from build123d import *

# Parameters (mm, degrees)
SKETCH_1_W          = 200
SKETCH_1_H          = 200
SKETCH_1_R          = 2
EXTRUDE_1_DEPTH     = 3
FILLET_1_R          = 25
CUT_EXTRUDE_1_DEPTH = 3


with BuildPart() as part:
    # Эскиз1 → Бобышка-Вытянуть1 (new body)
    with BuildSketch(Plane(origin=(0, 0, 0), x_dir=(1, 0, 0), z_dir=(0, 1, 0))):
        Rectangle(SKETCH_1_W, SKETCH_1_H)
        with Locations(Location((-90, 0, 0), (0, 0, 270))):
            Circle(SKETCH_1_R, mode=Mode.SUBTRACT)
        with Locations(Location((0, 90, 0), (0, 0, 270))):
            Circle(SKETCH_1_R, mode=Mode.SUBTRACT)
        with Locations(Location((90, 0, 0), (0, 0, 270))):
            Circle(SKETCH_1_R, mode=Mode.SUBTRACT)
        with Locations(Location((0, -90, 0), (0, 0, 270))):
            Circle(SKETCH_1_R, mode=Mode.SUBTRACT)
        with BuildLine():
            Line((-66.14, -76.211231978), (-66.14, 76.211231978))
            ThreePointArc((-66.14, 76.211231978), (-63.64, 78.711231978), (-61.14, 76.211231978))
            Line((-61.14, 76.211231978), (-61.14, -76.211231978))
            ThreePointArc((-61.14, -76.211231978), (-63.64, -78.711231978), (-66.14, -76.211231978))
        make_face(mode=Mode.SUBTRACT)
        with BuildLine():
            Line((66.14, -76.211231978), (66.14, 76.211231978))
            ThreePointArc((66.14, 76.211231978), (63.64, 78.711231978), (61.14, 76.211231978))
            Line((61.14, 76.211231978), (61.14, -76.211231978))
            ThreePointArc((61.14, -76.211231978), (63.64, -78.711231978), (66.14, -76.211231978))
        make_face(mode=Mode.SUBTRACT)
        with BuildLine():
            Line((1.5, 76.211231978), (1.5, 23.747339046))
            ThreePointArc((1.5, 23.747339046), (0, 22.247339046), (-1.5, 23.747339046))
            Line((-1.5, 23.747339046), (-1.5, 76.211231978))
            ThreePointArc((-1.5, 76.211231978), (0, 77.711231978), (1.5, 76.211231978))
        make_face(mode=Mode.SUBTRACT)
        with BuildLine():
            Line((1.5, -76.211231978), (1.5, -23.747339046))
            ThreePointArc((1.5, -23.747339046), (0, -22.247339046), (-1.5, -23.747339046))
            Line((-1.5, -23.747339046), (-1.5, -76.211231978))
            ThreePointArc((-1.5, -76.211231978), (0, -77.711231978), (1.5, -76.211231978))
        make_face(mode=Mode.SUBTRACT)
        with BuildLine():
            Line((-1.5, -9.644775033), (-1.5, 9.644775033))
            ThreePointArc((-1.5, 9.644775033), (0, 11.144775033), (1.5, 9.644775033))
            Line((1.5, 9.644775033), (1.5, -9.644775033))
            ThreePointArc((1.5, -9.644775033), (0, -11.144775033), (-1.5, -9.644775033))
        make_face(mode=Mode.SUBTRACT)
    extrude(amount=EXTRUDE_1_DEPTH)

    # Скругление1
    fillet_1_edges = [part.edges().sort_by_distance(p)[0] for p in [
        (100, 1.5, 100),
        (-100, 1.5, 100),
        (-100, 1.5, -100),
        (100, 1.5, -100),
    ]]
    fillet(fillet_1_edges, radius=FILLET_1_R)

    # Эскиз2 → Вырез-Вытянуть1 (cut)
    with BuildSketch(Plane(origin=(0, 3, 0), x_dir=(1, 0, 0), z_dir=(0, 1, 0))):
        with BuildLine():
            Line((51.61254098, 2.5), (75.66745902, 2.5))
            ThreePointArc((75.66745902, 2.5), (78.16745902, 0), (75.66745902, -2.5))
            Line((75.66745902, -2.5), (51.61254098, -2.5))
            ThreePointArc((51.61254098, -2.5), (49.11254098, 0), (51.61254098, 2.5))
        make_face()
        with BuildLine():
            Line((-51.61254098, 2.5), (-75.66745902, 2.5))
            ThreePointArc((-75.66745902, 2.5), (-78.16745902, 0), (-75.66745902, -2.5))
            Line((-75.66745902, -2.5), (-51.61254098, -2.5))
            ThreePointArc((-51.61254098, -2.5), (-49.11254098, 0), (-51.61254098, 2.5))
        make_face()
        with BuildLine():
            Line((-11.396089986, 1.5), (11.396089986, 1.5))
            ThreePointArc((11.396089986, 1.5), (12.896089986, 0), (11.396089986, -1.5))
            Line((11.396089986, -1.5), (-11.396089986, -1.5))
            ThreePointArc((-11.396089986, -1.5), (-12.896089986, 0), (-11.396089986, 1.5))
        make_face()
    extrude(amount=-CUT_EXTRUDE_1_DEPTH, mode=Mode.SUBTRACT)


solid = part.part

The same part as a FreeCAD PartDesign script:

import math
import FreeCAD as App
import Part
import Sketcher
from FreeCAD import Vector
Q = App.Units.Quantity


def edges_at(feature, points):
    """Names of the edges that pass closest to the given points."""
    edges = feature.Shape.Edges
    near = lambda p: min(range(len(edges)), key=lambda i: edges[i].distToShape(Part.Vertex(*p))[0])
    return sorted({f"Edge{near(p) + 1}" for p in points})


def add_polygon(sketch, points):
    """Adds a closed chain of lines whose ends are joined by coincident constraints."""
    first, n = sketch.GeometryCount, len(points)
    for a, b in zip(points, points[1:] + points[:1]):
        sketch.addGeometry(Part.LineSegment(App.Vector(*a, 0), App.Vector(*b, 0)), False)
    for i in range(n):
        sketch.addConstraint(Sketcher.Constraint("Coincident", first + i, 2, first + (i + 1) % n, 1))

doc = App.newDocument("Part")
body = doc.addObject("PartDesign::Body", "Body")

sketch1 = doc.addObject("Sketcher::SketchObject", "Sketch")
body.addObject(sketch1)
sketch1.AttachmentSupport = (doc.XZ_Plane, [""])
sketch1.MapMode = "FlatFace"
add_polygon(sketch1, [(-100, -100), (-100, 100), (100, 100), (100, -100)])
sketch1.addGeometry(Part.Circle(Vector(0, 90, 0), Vector(0, 0, 1), 2), False)
sketch1.addGeometry(Part.LineSegment(Vector(1.5, 23.747339, 0), Vector(1.5, 76.211232, 0)), False)
sketch1.addGeometry(Part.ArcOfCircle(Part.Circle(Vector(0, 76.211232, 0), Vector(0, 0, 1), 1.5), math.radians(0), math.radians(180)), False)
sketch1.addGeometry(Part.LineSegment(Vector(-1.5, 76.211232, 0), Vector(-1.5, 23.747339, 0)), False)
sketch1.addGeometry(Part.ArcOfCircle(Part.Circle(Vector(0, 23.747339, 0), Vector(0, 0, 1), 1.5), math.radians(180), math.radians(360)), False)
sketch1.addGeometry(Part.Circle(Vector(-90, 0, 0), Vector(0, 0, 1), 2), False)
sketch1.addGeometry(Part.ArcOfCircle(Part.Circle(Vector(-63.64, 76.211232, 0), Vector(0, 0, 1), 2.5), math.radians(0), math.radians(180)), False)
sketch1.addGeometry(Part.LineSegment(Vector(-66.14, 76.211232, 0), Vector(-66.14, -76.211232, 0)), False)
sketch1.addGeometry(Part.ArcOfCircle(Part.Circle(Vector(-63.64, -76.211232, 0), Vector(0, 0, 1), 2.5), math.radians(180), math.radians(360)), False)
sketch1.addGeometry(Part.LineSegment(Vector(-61.14, -76.211232, 0), Vector(-61.14, 76.211232, 0)), False)
sketch1.addGeometry(Part.ArcOfCircle(Part.Circle(Vector(0, 9.644775, 0), Vector(0, 0, 1), 1.5), math.radians(0), math.radians(180)), False)
sketch1.addGeometry(Part.LineSegment(Vector(-1.5, 9.644775, 0), Vector(-1.5, -9.644775, 0)), False)
sketch1.addGeometry(Part.ArcOfCircle(Part.Circle(Vector(0, -9.644775, 0), Vector(0, 0, 1), 1.5), math.radians(180), math.radians(360)), False)
sketch1.addGeometry(Part.LineSegment(Vector(1.5, -9.644775, 0), Vector(1.5, 9.644775, 0)), False)
sketch1.addGeometry(Part.LineSegment(Vector(66.14, -76.211232, 0), Vector(66.14, 76.211232, 0)), False)
sketch1.addGeometry(Part.ArcOfCircle(Part.Circle(Vector(63.64, 76.211232, 0), Vector(0, 0, 1), 2.5), math.radians(0), math.radians(180)), False)
sketch1.addGeometry(Part.LineSegment(Vector(61.14, 76.211232, 0), Vector(61.14, -76.211232, 0)), False)
sketch1.addGeometry(Part.ArcOfCircle(Part.Circle(Vector(63.64, -76.211232, 0), Vector(0, 0, 1), 2.5), math.radians(180), math.radians(360)), False)
sketch1.addGeometry(Part.Circle(Vector(90, 0, 0), Vector(0, 0, 1), 2), False)
sketch1.addGeometry(Part.ArcOfCircle(Part.Circle(Vector(0, -76.211232, 0), Vector(0, 0, 1), 1.5), math.radians(180), math.radians(360)), False)
sketch1.addGeometry(Part.LineSegment(Vector(1.5, -76.211232, 0), Vector(1.5, -23.747339, 0)), False)
sketch1.addGeometry(Part.ArcOfCircle(Part.Circle(Vector(0, -23.747339, 0), Vector(0, 0, 1), 1.5), math.radians(0), math.radians(180)), False)
sketch1.addGeometry(Part.LineSegment(Vector(-1.5, -23.747339, 0), Vector(-1.5, -76.211232, 0)), False)
sketch1.addGeometry(Part.Circle(Vector(0, -90, 0), Vector(0, 0, 1), 2), False)
sketch1.addConstraint([
    Sketcher.Constraint("Tangent", 5, 2, 6, 1),
    Sketcher.Constraint("Tangent", 6, 2, 7, 1),
    Sketcher.Constraint("Tangent", 7, 2, 8, 1),
    Sketcher.Constraint("Tangent", 8, 2, 5, 1),
    Sketcher.Constraint("Tangent", 10, 2, 11, 1),
    Sketcher.Constraint("Tangent", 11, 2, 12, 1),
    Sketcher.Constraint("Tangent", 12, 2, 13, 1),
    Sketcher.Constraint("Tangent", 13, 2, 10, 1),
    Sketcher.Constraint("Tangent", 14, 2, 15, 1),
    Sketcher.Constraint("Tangent", 15, 2, 16, 1),
    Sketcher.Constraint("Tangent", 16, 2, 17, 1),
    Sketcher.Constraint("Tangent", 17, 2, 14, 1),
    Sketcher.Constraint("Tangent", 18, 2, 19, 1),
    Sketcher.Constraint("Tangent", 19, 2, 20, 1),
    Sketcher.Constraint("Tangent", 20, 2, 21, 1),
    Sketcher.Constraint("Tangent", 21, 2, 18, 1),
    Sketcher.Constraint("Tangent", 23, 2, 24, 1),
    Sketcher.Constraint("Tangent", 24, 2, 25, 1),
    Sketcher.Constraint("Tangent", 25, 2, 26, 1),
    Sketcher.Constraint("Tangent", 26, 2, 23, 1),
    Sketcher.Constraint("Vertical", 0),
    Sketcher.Constraint("Horizontal", 1),
    Sketcher.Constraint("Vertical", 2),
    Sketcher.Constraint("Horizontal", 3),
    Sketcher.Constraint("Vertical", 5),
    Sketcher.Constraint("Vertical", 7),
    Sketcher.Constraint("Vertical", 11),
    Sketcher.Constraint("Vertical", 13),
    Sketcher.Constraint("Vertical", 15),
    Sketcher.Constraint("Vertical", 17),
    Sketcher.Constraint("Vertical", 18),
    Sketcher.Constraint("Vertical", 20),
    Sketcher.Constraint("Vertical", 24),
    Sketcher.Constraint("Vertical", 26),
    Sketcher.Constraint("Equal", 4, 9),
    Sketcher.Constraint("Equal", 8, 14),
    Sketcher.Constraint("Equal", 12, 19),
    Sketcher.Constraint("Equal", 9, 22),
    Sketcher.Constraint("Equal", 16, 23),
    Sketcher.Constraint("Equal", 22, 27),
    Sketcher.Constraint("Symmetric", 14, 3, 16, 3, -1, 1),
    Sketcher.Constraint("Symmetric", 12, 3, 19, 3, -1, 1),
    Sketcher.Constraint("Symmetric", 9, 3, 22, 3, -1, 1),
    Sketcher.Constraint("Symmetric", 6, 3, 23, 3, -1, 1),
    Sketcher.Constraint("Symmetric", 4, 3, 27, 3, -1, 1),
    Sketcher.Constraint("Symmetric", 0, 2, 2, 2, -1, 1),
    Sketcher.Constraint("Symmetric", 8, 3, 25, 3, -1),
    Sketcher.Constraint("PointOnObject", 4, 3, -2),
    Sketcher.Constraint("PointOnObject", 9, 3, -1),
    Sketcher.Constraint("Horizontal", 6, 3, 10, 3),
    Sketcher.Constraint("Horizontal", 10, 3, 19, 3),
    Sketcher.Constraint("Horizontal", 12, 3, 21, 3),
    Sketcher.Constraint("Equal", 3, 0),
    Sketcher.Constraint("Diameter", 4, Q("4 mm")),
    Sketcher.Constraint("Radius", 6, Q("1.5 mm")),
    Sketcher.Constraint("Radius", 10, Q("2.5 mm")),
    Sketcher.Constraint("DistanceX", 1, 1, 1, 2, Q("200 mm")),
    Sketcher.Constraint("DistanceY", -1, 1, 4, 3, Q("90 mm")),
    Sketcher.Constraint("DistanceX", 9, 3, -1, 1, Q("90 mm")),
    Sketcher.Constraint("DistanceX", 10, 3, -1, 1, Q("63.64 mm")),
    Sketcher.Constraint("DistanceY", 15, 2, 15, 1, Q("19.28955 mm")),
    Sketcher.Constraint("DistanceY", 5, 1, 5, 2, Q("52.463893 mm")),
    Sketcher.Constraint("DistanceY", 11, 2, 11, 1, Q("152.422464 mm")),
])
pad1 = doc.addObject("PartDesign::Pad", "Pad")
body.addObject(pad1)
pad1.Profile = sketch1
pad1.Length = 3
pad1.Reversed = True
doc.recompute()

fillet = doc.addObject("PartDesign::Fillet", "Fillet")
body.addObject(fillet)
fillet.Base = (pad1, edges_at(pad1, [
    (100, 1.5, 100),
    (-100, 1.5, 100),
    (-100, 1.5, -100),
    (100, 1.5, -100),
]))
fillet.Radius = 25

sketch2 = doc.addObject("Sketcher::SketchObject", "Sketch001")
body.addObject(sketch2)
sketch2.AttachmentSupport = (doc.XZ_Plane, [""])
sketch2.MapMode = "FlatFace"
sketch2.AttachmentOffset = App.Placement(Vector(0, 0, -3), App.Rotation())
sketch2.addGeometry([
    Part.LineSegment(Vector(75.667459, -2.5, 0), Vector(51.612541, -2.5, 0)),
    Part.ArcOfCircle(Part.Circle(Vector(51.612541, 0, 0), Vector(0, 0, 1), 2.5), math.radians(90), math.radians(270)),
    Part.LineSegment(Vector(51.612541, 2.5, 0), Vector(75.667459, 2.5, 0)),
    Part.ArcOfCircle(Part.Circle(Vector(75.667459, 0, 0), Vector(0, 0, 1), 2.5), math.radians(-90), math.radians(90)),
    Part.LineSegment(Vector(-51.612541, -2.5, 0), Vector(-75.667459, -2.5, 0)),
    Part.ArcOfCircle(Part.Circle(Vector(-75.667459, 0, 0), Vector(0, 0, 1), 2.5), math.radians(90), math.radians(270)),
    Part.LineSegment(Vector(-75.667459, 2.5, 0), Vector(-51.612541, 2.5, 0)),
    Part.ArcOfCircle(Part.Circle(Vector(-51.612541, 0, 0), Vector(0, 0, 1), 2.5), math.radians(-90), math.radians(90)),
    Part.LineSegment(Vector(11.39609, -1.5, 0), Vector(-11.39609, -1.5, 0)),
    Part.ArcOfCircle(Part.Circle(Vector(-11.39609, 0, 0), Vector(0, 0, 1), 1.5), math.radians(90), math.radians(270)),
    Part.LineSegment(Vector(-11.39609, 1.5, 0), Vector(11.39609, 1.5, 0)),
    Part.ArcOfCircle(Part.Circle(Vector(11.39609, 0, 0), Vector(0, 0, 1), 1.5), math.radians(-90), math.radians(90)),
], False)
sketch2.addConstraint([
    Sketcher.Constraint("Tangent", 0, 2, 1, 2),
    Sketcher.Constraint("Tangent", 1, 1, 2, 1),
    Sketcher.Constraint("Tangent", 2, 2, 3, 2),
    Sketcher.Constraint("Tangent", 3, 1, 0, 1),
    Sketcher.Constraint("Tangent", 4, 2, 5, 2),
    Sketcher.Constraint("Tangent", 5, 1, 6, 1),
    Sketcher.Constraint("Tangent", 6, 2, 7, 2),
    Sketcher.Constraint("Tangent", 7, 1, 4, 1),
    Sketcher.Constraint("Tangent", 8, 2, 9, 2),
    Sketcher.Constraint("Tangent", 9, 1, 10, 1),
    Sketcher.Constraint("Tangent", 10, 2, 11, 2),
    Sketcher.Constraint("Tangent", 11, 1, 8, 1),
    Sketcher.Constraint("Horizontal", 0),
    Sketcher.Constraint("Horizontal", 2),
    Sketcher.Constraint("Horizontal", 4),
    Sketcher.Constraint("Horizontal", 6),
    Sketcher.Constraint("Horizontal", 8),
    Sketcher.Constraint("Horizontal", 10),
    Sketcher.Constraint("Equal", 3, 5),
    Sketcher.Constraint("Symmetric", 3, 3, 5, 3, -1, 1),
    Sketcher.Constraint("Symmetric", 9, 3, 11, 3, -1, 1),
    Sketcher.Constraint("Symmetric", 1, 3, 7, 3, -2),
    Sketcher.Constraint("Radius", 1, Q("2.5 mm")),
    Sketcher.Constraint("Radius", 9, Q("1.5 mm")),
    Sketcher.Constraint("DistanceX", 5, 3, 1, 3, Q("127.28 mm")),
    Sketcher.Constraint("DistanceX", 0, 2, 0, 1, Q("24.054918 mm")),
    Sketcher.Constraint("DistanceX", 8, 2, 8, 1, Q("22.79218 mm")),
])
pocket1 = doc.addObject("PartDesign::Pocket", "Pocket")
body.addObject(pocket1)
pocket1.Profile = sketch2
pocket1.Length = 3
pocket1.Reversed = True

doc.recompute()
